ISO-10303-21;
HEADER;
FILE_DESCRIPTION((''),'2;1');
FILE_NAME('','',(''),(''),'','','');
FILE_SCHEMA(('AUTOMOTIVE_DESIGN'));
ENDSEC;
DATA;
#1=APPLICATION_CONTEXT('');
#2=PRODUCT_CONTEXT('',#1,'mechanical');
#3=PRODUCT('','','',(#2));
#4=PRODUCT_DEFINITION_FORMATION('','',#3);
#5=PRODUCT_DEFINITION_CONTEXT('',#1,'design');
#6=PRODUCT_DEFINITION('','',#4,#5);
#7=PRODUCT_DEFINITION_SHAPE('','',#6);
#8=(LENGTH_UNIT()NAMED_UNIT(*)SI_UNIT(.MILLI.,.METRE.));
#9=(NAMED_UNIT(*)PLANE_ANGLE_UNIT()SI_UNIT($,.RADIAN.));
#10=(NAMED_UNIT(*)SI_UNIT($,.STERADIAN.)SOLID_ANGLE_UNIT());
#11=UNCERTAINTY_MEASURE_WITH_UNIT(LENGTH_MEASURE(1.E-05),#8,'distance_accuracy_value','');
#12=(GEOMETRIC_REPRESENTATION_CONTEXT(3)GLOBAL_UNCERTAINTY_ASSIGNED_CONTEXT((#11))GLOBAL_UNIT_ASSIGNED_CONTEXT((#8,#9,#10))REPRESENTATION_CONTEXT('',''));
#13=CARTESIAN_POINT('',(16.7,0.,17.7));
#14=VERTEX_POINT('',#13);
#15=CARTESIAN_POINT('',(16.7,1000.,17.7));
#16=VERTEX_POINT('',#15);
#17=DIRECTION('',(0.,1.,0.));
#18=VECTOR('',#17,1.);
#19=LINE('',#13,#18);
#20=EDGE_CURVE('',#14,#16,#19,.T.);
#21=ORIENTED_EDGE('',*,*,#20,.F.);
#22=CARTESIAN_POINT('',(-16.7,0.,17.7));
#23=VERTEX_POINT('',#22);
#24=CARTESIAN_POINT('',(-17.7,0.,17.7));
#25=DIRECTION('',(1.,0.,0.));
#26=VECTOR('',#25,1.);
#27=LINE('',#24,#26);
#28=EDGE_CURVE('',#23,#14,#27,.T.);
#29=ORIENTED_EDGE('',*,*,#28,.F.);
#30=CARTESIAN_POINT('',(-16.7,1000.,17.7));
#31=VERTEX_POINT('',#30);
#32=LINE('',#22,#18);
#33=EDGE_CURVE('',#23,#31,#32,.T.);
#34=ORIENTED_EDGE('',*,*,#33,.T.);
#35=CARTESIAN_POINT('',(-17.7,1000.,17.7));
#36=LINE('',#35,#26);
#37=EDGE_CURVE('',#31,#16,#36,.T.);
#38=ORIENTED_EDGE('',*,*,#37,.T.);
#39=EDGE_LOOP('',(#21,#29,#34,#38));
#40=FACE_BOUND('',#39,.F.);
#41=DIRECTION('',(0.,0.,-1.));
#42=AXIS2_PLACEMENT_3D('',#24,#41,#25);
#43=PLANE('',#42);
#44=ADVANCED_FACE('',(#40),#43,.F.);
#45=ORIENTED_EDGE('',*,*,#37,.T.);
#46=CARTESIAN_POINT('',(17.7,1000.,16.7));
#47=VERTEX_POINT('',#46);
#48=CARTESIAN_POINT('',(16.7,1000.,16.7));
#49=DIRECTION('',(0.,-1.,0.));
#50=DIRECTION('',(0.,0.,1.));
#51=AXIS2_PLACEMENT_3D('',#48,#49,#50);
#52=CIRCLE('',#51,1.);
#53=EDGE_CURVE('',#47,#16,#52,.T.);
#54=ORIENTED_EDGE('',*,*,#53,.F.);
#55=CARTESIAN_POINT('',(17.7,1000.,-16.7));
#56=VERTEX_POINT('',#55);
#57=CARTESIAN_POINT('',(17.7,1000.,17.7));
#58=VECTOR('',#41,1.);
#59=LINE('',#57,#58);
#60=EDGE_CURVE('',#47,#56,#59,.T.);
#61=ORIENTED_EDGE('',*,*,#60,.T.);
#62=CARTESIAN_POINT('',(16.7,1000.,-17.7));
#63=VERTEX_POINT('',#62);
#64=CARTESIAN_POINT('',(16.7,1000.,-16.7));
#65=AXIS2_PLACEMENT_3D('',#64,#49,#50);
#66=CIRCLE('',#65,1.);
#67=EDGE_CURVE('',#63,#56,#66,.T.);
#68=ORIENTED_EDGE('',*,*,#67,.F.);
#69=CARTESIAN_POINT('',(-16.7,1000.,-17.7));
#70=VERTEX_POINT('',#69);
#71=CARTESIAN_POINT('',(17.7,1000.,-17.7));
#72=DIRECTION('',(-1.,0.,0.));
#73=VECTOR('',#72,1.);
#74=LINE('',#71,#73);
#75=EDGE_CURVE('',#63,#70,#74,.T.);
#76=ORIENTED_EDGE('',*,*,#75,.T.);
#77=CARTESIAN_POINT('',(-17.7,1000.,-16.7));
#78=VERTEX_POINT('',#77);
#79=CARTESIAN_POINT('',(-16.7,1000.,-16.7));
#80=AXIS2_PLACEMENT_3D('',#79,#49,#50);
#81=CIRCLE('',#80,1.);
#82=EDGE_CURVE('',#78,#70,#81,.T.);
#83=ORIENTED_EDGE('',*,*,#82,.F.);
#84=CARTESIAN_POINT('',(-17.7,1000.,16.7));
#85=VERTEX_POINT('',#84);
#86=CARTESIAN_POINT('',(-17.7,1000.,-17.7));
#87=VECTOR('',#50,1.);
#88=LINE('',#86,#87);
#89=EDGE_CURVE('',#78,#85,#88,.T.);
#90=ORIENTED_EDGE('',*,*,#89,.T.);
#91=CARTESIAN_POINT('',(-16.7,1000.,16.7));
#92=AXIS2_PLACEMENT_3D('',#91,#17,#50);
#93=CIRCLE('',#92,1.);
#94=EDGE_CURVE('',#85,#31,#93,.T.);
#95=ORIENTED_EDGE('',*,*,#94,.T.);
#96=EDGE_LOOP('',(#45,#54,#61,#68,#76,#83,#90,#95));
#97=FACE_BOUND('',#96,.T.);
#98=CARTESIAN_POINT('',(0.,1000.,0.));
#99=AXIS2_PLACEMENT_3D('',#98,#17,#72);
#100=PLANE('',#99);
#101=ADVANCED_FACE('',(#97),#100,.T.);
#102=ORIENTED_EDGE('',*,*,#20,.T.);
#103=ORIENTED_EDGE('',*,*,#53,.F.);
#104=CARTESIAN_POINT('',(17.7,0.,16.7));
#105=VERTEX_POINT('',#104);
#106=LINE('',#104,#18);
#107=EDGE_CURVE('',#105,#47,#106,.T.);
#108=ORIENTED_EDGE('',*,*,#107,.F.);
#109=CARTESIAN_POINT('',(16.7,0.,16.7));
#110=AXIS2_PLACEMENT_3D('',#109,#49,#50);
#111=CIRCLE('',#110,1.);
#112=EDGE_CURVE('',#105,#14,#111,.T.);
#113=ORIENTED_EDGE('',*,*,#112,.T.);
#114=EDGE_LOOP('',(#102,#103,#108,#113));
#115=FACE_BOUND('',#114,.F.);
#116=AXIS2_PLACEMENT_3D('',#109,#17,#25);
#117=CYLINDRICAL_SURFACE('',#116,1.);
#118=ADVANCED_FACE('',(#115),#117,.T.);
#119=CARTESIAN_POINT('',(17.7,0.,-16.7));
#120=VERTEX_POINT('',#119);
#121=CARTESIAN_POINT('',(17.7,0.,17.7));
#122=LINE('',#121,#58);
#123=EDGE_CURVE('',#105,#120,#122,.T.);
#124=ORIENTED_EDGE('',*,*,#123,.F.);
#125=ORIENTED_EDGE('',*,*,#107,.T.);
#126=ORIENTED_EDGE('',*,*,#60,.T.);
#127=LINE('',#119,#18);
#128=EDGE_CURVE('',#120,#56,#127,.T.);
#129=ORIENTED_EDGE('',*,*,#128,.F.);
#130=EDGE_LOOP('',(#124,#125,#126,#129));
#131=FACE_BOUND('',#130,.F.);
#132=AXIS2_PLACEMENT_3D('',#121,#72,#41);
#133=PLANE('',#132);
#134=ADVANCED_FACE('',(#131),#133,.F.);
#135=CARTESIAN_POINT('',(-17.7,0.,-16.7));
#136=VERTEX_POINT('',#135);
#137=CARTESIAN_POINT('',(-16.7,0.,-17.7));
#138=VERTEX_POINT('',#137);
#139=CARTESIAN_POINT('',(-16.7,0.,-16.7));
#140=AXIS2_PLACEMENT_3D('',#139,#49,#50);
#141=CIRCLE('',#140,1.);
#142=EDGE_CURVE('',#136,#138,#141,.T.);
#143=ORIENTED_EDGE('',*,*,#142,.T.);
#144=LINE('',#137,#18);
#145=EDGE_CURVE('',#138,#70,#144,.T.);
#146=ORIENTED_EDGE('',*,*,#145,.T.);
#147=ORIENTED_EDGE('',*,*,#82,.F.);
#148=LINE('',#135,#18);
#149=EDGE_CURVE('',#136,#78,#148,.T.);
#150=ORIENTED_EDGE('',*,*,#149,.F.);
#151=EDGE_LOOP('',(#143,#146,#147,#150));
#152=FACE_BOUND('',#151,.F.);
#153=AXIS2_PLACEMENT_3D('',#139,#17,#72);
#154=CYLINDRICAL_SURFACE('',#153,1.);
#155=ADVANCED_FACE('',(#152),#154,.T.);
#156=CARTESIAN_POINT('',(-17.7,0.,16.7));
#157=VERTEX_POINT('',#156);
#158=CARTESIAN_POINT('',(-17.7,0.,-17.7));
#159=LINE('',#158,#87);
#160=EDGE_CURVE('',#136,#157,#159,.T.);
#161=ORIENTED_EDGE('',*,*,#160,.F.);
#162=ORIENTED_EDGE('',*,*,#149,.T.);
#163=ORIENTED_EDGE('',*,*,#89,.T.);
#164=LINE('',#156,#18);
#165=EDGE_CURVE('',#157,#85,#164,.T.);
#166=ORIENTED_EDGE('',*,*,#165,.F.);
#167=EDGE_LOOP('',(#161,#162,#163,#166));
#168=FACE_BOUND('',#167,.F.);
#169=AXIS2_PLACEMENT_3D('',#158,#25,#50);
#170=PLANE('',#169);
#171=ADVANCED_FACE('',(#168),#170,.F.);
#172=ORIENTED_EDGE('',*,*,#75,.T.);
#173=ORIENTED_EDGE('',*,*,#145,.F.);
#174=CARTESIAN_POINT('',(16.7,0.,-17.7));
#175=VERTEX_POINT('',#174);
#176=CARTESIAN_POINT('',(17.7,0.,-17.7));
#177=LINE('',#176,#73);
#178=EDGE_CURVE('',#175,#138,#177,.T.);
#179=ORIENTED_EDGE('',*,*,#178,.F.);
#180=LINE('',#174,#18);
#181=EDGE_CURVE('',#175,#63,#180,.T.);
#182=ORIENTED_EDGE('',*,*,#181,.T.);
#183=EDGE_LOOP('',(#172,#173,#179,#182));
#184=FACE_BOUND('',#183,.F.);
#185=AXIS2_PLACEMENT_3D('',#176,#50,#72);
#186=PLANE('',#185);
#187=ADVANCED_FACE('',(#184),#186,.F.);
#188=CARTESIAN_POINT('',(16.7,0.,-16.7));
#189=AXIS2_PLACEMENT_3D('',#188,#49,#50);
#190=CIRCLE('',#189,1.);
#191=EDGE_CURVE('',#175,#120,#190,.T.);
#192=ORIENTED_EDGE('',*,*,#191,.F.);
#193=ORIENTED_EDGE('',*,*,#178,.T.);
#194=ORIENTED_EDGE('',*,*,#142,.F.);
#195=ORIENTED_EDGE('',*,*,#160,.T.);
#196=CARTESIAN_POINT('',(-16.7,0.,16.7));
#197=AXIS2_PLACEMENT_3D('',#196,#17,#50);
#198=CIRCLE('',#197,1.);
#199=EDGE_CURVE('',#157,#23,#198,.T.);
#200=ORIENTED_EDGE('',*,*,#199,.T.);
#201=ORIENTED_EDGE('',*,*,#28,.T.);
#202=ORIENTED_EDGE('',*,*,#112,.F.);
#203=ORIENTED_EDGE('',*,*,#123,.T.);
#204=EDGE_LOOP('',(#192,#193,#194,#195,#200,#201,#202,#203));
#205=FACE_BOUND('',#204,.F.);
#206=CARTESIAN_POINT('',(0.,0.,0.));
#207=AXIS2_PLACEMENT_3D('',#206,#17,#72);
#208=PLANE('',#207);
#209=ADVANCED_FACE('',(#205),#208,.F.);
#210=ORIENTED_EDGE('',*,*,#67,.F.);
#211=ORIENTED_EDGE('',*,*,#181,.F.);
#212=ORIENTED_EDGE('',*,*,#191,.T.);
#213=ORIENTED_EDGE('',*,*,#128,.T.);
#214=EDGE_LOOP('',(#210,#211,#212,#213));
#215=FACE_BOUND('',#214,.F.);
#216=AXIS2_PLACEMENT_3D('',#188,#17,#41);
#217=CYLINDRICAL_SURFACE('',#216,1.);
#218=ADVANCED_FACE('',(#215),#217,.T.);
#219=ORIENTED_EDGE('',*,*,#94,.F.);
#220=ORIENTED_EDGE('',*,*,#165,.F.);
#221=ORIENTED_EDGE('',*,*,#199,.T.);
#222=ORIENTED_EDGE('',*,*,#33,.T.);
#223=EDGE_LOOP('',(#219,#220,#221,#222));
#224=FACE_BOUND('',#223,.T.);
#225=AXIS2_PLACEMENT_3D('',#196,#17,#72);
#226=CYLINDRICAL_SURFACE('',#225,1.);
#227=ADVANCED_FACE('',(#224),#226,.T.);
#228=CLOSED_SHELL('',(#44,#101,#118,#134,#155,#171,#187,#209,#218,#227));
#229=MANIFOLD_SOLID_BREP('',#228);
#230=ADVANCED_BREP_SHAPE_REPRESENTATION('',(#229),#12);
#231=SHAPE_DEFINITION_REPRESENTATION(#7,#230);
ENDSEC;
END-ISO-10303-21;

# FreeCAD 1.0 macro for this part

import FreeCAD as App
import Part
import Sketcher

V = App.Vector
Q = App.Units.Quantity


def edges_at(feature, points):
    """Names of the edges that pass closest to the given points."""
    edges = feature.Shape.Edges
    near = lambda p: min(range(len(edges)), key=lambda i: edges[i].distToShape(Part.Vertex(*p))[0])
    return sorted({f"Edge{near(p) + 1}" for p in points})


def add_polygon(sketch, points):
    """Adds a closed chain of lines whose ends are joined by coincident constraints."""
    first, n = sketch.GeometryCount, len(points)
    for a, b in zip(points, points[1:] + points[:1]):
        sketch.addGeometry(Part.LineSegment(App.Vector(*a, 0), App.Vector(*b, 0)), False)
    for i in range(n):
        sketch.addConstraint(Sketcher.Constraint("Coincident", first + i, 2, first + (i + 1) % n, 1))

doc = App.newDocument("Part")
body = doc.addObject("PartDesign::Body", "Body")

sketch1 = body.newObject("Sketcher::SketchObject", "Sketch")
sketch1.AttachmentSupport = (doc.getObject("XZ_Plane"), [""])
sketch1.MapMode = "FlatFace"
add_polygon(sketch1, [(-18, -18), (-18, 18), (18, 18), (18, -18)])
sketch1.addConstraint([
    Sketcher.Constraint("Vertical", 0),
    Sketcher.Constraint("Horizontal", 1),
    Sketcher.Constraint("Vertical", 2),
    Sketcher.Constraint("Horizontal", 3),
    Sketcher.Constraint("Symmetric", 0, 2, 2, 2, -1, 1),
    Sketcher.Constraint("Equal", 3, 0),
    Sketcher.Constraint("DistanceX", 1, 1, 1, 2, Q("35.4 mm")),
])
pad1 = body.newObject("PartDesign::Pad", "Pad")
pad1.Profile = sketch1
pad1.Length = 1000
pad1.Reversed = True
doc.recompute()

fillet = body.newObject("PartDesign::Fillet", "Fillet")
fillet.Base = (pad1, edges_at(pad1, [
    (17.7, 500, 17.7),
    (17.7, 500, -17.7),
    (-17.7, 500, -17.7),
    (-17.7, 500, 17.7),
]))
fillet.Radius = 1

doc.recompute()
